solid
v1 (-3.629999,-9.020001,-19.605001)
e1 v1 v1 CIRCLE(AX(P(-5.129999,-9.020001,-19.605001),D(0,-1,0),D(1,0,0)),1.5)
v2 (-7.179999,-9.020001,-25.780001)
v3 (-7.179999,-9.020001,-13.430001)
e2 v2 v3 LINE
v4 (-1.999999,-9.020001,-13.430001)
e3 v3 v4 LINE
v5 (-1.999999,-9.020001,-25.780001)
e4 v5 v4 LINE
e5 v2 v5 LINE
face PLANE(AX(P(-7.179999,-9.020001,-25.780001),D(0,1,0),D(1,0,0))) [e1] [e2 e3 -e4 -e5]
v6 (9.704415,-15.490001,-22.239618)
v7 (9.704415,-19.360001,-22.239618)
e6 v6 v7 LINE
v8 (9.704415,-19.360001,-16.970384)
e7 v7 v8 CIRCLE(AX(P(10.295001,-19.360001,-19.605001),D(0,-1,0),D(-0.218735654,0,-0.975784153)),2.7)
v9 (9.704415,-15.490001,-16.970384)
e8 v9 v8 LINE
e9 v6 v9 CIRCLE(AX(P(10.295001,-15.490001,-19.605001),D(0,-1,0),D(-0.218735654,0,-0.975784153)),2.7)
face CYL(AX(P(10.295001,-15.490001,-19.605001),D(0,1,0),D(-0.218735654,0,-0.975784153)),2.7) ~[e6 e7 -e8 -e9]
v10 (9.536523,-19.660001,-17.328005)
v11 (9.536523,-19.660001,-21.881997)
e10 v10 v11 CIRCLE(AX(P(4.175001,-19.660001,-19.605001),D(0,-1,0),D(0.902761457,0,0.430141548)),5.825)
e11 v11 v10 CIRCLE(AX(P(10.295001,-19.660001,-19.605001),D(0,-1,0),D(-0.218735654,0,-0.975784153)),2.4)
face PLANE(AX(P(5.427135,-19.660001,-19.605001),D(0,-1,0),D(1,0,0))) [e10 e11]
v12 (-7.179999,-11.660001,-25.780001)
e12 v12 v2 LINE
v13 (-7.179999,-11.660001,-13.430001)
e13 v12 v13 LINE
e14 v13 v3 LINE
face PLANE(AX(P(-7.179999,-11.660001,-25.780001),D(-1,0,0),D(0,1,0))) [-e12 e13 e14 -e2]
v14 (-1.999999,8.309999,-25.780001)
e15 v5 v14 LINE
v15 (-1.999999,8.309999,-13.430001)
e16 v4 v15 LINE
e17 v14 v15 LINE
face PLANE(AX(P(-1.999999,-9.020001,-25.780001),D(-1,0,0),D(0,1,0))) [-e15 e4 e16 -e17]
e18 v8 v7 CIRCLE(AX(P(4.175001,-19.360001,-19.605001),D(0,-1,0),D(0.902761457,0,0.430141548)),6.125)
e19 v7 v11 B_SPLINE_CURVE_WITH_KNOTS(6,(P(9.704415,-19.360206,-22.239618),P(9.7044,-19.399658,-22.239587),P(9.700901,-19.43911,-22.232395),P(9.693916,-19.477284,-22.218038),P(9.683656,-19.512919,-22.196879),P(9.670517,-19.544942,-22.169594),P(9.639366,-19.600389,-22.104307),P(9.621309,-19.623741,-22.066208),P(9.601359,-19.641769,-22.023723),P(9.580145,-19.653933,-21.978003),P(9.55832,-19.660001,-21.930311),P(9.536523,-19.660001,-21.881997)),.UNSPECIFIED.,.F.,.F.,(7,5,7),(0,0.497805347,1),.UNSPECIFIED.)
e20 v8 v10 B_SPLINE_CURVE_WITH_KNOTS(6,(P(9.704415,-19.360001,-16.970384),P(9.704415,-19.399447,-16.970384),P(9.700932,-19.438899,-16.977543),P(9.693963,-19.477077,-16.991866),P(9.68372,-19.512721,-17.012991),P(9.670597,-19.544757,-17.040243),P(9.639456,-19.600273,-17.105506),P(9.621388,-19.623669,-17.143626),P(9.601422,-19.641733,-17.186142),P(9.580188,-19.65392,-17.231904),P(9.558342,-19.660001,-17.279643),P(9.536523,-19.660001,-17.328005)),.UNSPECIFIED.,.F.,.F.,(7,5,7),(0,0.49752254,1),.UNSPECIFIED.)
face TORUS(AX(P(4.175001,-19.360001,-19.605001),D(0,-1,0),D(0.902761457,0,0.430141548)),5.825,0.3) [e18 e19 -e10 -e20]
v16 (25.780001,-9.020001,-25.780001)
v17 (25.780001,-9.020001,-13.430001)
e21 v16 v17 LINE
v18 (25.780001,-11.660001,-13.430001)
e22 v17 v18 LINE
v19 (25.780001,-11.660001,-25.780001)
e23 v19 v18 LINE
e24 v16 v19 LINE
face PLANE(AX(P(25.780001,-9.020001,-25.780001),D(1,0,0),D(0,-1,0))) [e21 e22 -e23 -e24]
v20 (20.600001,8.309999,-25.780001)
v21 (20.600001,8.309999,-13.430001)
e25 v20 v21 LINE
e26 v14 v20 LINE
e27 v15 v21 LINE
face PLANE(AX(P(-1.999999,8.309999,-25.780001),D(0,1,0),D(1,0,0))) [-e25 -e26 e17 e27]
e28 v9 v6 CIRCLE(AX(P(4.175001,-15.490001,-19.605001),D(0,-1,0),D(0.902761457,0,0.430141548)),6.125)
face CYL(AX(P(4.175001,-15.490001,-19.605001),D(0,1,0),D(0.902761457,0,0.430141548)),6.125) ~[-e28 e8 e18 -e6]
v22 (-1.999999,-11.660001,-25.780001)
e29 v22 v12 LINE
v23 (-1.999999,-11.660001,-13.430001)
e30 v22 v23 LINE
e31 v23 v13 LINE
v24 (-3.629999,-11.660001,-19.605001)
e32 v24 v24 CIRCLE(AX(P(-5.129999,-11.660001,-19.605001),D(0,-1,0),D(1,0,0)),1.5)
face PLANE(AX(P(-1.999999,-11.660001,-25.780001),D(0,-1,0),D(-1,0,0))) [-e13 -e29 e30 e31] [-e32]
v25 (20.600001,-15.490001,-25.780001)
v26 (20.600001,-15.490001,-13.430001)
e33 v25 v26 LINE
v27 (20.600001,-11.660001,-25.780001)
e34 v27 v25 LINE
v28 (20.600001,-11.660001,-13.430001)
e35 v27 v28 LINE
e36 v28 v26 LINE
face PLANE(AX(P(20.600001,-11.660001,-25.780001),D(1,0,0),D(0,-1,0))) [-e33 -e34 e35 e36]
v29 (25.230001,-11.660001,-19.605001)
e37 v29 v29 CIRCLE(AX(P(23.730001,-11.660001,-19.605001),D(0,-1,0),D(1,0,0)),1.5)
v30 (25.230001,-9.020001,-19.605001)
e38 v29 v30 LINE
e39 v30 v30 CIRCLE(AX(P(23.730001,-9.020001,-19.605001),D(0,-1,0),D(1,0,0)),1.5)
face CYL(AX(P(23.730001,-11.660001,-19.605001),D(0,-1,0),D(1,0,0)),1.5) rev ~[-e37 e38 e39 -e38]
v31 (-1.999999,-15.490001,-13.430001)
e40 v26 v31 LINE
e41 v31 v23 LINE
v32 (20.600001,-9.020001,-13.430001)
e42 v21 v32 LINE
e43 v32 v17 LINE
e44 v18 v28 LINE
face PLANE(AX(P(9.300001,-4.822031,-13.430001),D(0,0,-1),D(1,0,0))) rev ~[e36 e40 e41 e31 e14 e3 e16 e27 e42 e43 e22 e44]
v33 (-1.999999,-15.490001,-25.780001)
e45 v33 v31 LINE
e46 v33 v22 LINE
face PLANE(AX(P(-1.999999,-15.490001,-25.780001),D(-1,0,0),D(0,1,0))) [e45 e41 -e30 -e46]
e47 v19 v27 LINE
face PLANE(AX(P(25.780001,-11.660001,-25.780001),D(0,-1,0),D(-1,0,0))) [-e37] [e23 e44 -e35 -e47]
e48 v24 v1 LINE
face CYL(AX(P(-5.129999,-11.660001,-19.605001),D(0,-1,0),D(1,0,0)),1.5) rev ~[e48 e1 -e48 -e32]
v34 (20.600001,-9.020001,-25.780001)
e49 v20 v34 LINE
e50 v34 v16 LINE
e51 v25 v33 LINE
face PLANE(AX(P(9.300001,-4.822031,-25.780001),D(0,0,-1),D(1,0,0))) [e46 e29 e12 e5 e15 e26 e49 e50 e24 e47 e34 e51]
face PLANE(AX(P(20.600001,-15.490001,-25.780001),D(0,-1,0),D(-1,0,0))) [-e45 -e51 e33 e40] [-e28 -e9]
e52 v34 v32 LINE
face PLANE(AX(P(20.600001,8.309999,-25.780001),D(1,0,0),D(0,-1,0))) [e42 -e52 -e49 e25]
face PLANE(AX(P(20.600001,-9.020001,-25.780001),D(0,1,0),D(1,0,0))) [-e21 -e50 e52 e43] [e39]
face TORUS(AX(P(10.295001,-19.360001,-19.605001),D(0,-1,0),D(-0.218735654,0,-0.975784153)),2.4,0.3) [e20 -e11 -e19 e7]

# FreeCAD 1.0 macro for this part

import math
import FreeCAD as App
import Part
import Sketcher
from FreeCAD import Vector
Q = App.Units.Quantity


def edges_at(feature, points):
    """Names of the edges that pass closest to the given points."""
    edges = feature.Shape.Edges
    near = lambda p: min(range(len(edges)), key=lambda i: edges[i].distToShape(Part.Vertex(*p))[0])
    return sorted({f"Edge{near(p) + 1}" for p in points})


def add_polygon(sketch, points):
    """Adds a closed chain of lines whose ends are joined by coincident constraints."""
    first, n = sketch.GeometryCount, len(points)
    for a, b in zip(points, points[1:] + points[:1]):
        sketch.addGeometry(Part.LineSegment(App.Vector(*a, 0), App.Vector(*b, 0)), False)
    for i in range(n):
        sketch.addConstraint(Sketcher.Constraint("Coincident", first + i, 2, first + (i + 1) % n, 1))

doc = App.newDocument("Part")
body = doc.addObject("PartDesign::Body", "Body")

# Sketch on XY plane
sketch1 = body.newObject("Sketcher::SketchObject", "Sketch")
sketch1.AttachmentSupport = (doc.getObject("XY_Plane"), [""])
sketch1.MapMode = "FlatFace"
add_polygon(sketch1, [(22.6, 23.8), (0, 23.8), (0, 19.97), (-5.18, 19.97), (-5.18, 17.33), (0, 17.33), (0, 0), (22.6, 0), (22.6, 17.33), (27.78, 17.33), (27.78, 19.97), (22.6, 19.97)])  # lines 0-11
sketch1.addConstraint([
    Sketcher.Constraint("Horizontal", 0),
    Sketcher.Constraint("Vertical", 1),
    Sketcher.Constraint("Horizontal", 2),
    Sketcher.Constraint("Vertical", 3),
    Sketcher.Constraint("Horizontal", 4),
    Sketcher.Constraint("Vertical", 5),
    Sketcher.Constraint("Horizontal", 6),
    Sketcher.Constraint("Vertical", 7),
    Sketcher.Constraint("Horizontal", 8),
    Sketcher.Constraint("Vertical", 9),
    Sketcher.Constraint("Horizontal", 10),
    Sketcher.Constraint("Vertical", 11),
    Sketcher.Constraint("Coincident", 5, 2, -1, 1),
    Sketcher.Constraint("PointOnObject", 0, 2, -2),
    Sketcher.Constraint("Horizontal", 4, 2, 7, 2),
    Sketcher.Constraint("Horizontal", 2, 2, 9, 2),
    Sketcher.Constraint("Vertical", 7, 2, 10, 2),
    Sketcher.Constraint("Equal", 4, 8),
    Sketcher.Constraint("DistanceX", 0, 2, 0, 1, Q("22.6 mm")),
    Sketcher.Constraint("DistanceX", 2, 2, 2, 1, Q("5.18 mm")),
    Sketcher.Constraint("DistanceY", 1, 2, 1, 1, Q("3.83 mm")),
    Sketcher.Constraint("DistanceY", 3, 2, 3, 1, Q("2.64 mm")),
    Sketcher.Constraint("DistanceY", 5, 2, 5, 1, Q("17.33 mm")),
])
pad1 = body.newObject("PartDesign::Pad", "Pad")
pad1.Profile = sketch1
pad1.Length = 12.35

# Sketch on XZ plane
sketch2 = body.newObject("Sketcher::SketchObject", "Sketch001")
sketch2.AttachmentSupport = (doc.getObject("XZ_Plane"), [""])
sketch2.MapMode = "FlatFace"
sketch2.AttachmentOffset = App.Placement(Vector(0, 0, -23.8), App.Rotation())
sketch2.addGeometry([
    Part.ArcOfCircle(Part.Circle(Vector(16.425, 6.175, 0), Vector(0, 0, 1), 6.125), math.radians(-154.523457), math.radians(154.523457)),
    Part.ArcOfCircle(Part.Circle(Vector(10.305, 6.175, 0), Vector(0, 0, 1), 2.7), math.radians(77.365217), math.radians(282.634783)),
], False)
sketch2.addConstraint([
    Sketcher.Constraint("Coincident", 0, 1, 1, 2),
    Sketcher.Constraint("Coincident", 1, 1, 0, 2),
    Sketcher.Constraint("Horizontal", 0, 3, 1, 3),
    Sketcher.Constraint("Radius", 1, Q("2.7 mm")),
    Sketcher.Constraint("Radius", 0, Q("6.125 mm")),
    Sketcher.Constraint("DistanceX", 1, 3, 0, 3, Q("6.12 mm")),
    Sketcher.Constraint("DistanceX", -1, 1, 0, 3, Q("16.425 mm")),
    Sketcher.Constraint("DistanceY", -1, 1, 0, 3, Q("6.175 mm")),
])
pad2 = body.newObject("PartDesign::Pad", "Pad001")
pad2.Profile = sketch2
pad2.Length = 4.17
pad2.Reversed = True

# Sketch on XZ plane
sketch3 = body.newObject("Sketcher::SketchObject", "Sketch002")
sketch3.AttachmentSupport = (doc.getObject("XZ_Plane"), [""])
sketch3.MapMode = "FlatFace"
sketch3.AttachmentOffset = App.Placement(Vector(0, 0, -19.97), App.Rotation())
sketch3.addGeometry([
    Part.Circle(Vector(25.73, 6.175, 0), Vector(0, 0, 1), 1.5),
    Part.Circle(Vector(-3.13, 6.175, 0), Vector(0, 0, 1), 1.5),
], False)
sketch3.addConstraint([
    Sketcher.Constraint("Equal", 0, 1),
    Sketcher.Constraint("Horizontal", 0, 3, 1, 3),
    Sketcher.Constraint("Diameter", 0, Q("3 mm")),
    Sketcher.Constraint("DistanceX", -1, 1, 0, 3, Q("25.73 mm")),
    Sketcher.Constraint("DistanceX", 1, 3, -1, 1, Q("3.13 mm")),
    Sketcher.Constraint("DistanceY", -1, 1, 0, 3, Q("6.175 mm")),
])
pocket1 = body.newObject("PartDesign::Pocket", "Pocket")
pocket1.Profile = sketch3
pocket1.Length = 5
pocket1.Reversed = True
doc.recompute()

fillet = body.newObject("PartDesign::Fillet", "Fillet")
fillet.Base = (pocket1, edges_at(pocket1, [(22.55, 27.97, 6.175), (7.605, 27.97, 6.175)]))
fillet.Radius = 0.3
body2 = doc.addObject("PartDesign::Body", "Body001")
doc.recompute()

body.Placement = App.Placement(Vector(20.600001, 8.309999, -25.780001), App.Rotation(Vector(0, 0, 1), 180))
boolean = body2.newObject("PartDesign::Boolean", "Boolean")
boolean.Type = "Fuse"
boolean.addObjects([body])

doc.recompute()
